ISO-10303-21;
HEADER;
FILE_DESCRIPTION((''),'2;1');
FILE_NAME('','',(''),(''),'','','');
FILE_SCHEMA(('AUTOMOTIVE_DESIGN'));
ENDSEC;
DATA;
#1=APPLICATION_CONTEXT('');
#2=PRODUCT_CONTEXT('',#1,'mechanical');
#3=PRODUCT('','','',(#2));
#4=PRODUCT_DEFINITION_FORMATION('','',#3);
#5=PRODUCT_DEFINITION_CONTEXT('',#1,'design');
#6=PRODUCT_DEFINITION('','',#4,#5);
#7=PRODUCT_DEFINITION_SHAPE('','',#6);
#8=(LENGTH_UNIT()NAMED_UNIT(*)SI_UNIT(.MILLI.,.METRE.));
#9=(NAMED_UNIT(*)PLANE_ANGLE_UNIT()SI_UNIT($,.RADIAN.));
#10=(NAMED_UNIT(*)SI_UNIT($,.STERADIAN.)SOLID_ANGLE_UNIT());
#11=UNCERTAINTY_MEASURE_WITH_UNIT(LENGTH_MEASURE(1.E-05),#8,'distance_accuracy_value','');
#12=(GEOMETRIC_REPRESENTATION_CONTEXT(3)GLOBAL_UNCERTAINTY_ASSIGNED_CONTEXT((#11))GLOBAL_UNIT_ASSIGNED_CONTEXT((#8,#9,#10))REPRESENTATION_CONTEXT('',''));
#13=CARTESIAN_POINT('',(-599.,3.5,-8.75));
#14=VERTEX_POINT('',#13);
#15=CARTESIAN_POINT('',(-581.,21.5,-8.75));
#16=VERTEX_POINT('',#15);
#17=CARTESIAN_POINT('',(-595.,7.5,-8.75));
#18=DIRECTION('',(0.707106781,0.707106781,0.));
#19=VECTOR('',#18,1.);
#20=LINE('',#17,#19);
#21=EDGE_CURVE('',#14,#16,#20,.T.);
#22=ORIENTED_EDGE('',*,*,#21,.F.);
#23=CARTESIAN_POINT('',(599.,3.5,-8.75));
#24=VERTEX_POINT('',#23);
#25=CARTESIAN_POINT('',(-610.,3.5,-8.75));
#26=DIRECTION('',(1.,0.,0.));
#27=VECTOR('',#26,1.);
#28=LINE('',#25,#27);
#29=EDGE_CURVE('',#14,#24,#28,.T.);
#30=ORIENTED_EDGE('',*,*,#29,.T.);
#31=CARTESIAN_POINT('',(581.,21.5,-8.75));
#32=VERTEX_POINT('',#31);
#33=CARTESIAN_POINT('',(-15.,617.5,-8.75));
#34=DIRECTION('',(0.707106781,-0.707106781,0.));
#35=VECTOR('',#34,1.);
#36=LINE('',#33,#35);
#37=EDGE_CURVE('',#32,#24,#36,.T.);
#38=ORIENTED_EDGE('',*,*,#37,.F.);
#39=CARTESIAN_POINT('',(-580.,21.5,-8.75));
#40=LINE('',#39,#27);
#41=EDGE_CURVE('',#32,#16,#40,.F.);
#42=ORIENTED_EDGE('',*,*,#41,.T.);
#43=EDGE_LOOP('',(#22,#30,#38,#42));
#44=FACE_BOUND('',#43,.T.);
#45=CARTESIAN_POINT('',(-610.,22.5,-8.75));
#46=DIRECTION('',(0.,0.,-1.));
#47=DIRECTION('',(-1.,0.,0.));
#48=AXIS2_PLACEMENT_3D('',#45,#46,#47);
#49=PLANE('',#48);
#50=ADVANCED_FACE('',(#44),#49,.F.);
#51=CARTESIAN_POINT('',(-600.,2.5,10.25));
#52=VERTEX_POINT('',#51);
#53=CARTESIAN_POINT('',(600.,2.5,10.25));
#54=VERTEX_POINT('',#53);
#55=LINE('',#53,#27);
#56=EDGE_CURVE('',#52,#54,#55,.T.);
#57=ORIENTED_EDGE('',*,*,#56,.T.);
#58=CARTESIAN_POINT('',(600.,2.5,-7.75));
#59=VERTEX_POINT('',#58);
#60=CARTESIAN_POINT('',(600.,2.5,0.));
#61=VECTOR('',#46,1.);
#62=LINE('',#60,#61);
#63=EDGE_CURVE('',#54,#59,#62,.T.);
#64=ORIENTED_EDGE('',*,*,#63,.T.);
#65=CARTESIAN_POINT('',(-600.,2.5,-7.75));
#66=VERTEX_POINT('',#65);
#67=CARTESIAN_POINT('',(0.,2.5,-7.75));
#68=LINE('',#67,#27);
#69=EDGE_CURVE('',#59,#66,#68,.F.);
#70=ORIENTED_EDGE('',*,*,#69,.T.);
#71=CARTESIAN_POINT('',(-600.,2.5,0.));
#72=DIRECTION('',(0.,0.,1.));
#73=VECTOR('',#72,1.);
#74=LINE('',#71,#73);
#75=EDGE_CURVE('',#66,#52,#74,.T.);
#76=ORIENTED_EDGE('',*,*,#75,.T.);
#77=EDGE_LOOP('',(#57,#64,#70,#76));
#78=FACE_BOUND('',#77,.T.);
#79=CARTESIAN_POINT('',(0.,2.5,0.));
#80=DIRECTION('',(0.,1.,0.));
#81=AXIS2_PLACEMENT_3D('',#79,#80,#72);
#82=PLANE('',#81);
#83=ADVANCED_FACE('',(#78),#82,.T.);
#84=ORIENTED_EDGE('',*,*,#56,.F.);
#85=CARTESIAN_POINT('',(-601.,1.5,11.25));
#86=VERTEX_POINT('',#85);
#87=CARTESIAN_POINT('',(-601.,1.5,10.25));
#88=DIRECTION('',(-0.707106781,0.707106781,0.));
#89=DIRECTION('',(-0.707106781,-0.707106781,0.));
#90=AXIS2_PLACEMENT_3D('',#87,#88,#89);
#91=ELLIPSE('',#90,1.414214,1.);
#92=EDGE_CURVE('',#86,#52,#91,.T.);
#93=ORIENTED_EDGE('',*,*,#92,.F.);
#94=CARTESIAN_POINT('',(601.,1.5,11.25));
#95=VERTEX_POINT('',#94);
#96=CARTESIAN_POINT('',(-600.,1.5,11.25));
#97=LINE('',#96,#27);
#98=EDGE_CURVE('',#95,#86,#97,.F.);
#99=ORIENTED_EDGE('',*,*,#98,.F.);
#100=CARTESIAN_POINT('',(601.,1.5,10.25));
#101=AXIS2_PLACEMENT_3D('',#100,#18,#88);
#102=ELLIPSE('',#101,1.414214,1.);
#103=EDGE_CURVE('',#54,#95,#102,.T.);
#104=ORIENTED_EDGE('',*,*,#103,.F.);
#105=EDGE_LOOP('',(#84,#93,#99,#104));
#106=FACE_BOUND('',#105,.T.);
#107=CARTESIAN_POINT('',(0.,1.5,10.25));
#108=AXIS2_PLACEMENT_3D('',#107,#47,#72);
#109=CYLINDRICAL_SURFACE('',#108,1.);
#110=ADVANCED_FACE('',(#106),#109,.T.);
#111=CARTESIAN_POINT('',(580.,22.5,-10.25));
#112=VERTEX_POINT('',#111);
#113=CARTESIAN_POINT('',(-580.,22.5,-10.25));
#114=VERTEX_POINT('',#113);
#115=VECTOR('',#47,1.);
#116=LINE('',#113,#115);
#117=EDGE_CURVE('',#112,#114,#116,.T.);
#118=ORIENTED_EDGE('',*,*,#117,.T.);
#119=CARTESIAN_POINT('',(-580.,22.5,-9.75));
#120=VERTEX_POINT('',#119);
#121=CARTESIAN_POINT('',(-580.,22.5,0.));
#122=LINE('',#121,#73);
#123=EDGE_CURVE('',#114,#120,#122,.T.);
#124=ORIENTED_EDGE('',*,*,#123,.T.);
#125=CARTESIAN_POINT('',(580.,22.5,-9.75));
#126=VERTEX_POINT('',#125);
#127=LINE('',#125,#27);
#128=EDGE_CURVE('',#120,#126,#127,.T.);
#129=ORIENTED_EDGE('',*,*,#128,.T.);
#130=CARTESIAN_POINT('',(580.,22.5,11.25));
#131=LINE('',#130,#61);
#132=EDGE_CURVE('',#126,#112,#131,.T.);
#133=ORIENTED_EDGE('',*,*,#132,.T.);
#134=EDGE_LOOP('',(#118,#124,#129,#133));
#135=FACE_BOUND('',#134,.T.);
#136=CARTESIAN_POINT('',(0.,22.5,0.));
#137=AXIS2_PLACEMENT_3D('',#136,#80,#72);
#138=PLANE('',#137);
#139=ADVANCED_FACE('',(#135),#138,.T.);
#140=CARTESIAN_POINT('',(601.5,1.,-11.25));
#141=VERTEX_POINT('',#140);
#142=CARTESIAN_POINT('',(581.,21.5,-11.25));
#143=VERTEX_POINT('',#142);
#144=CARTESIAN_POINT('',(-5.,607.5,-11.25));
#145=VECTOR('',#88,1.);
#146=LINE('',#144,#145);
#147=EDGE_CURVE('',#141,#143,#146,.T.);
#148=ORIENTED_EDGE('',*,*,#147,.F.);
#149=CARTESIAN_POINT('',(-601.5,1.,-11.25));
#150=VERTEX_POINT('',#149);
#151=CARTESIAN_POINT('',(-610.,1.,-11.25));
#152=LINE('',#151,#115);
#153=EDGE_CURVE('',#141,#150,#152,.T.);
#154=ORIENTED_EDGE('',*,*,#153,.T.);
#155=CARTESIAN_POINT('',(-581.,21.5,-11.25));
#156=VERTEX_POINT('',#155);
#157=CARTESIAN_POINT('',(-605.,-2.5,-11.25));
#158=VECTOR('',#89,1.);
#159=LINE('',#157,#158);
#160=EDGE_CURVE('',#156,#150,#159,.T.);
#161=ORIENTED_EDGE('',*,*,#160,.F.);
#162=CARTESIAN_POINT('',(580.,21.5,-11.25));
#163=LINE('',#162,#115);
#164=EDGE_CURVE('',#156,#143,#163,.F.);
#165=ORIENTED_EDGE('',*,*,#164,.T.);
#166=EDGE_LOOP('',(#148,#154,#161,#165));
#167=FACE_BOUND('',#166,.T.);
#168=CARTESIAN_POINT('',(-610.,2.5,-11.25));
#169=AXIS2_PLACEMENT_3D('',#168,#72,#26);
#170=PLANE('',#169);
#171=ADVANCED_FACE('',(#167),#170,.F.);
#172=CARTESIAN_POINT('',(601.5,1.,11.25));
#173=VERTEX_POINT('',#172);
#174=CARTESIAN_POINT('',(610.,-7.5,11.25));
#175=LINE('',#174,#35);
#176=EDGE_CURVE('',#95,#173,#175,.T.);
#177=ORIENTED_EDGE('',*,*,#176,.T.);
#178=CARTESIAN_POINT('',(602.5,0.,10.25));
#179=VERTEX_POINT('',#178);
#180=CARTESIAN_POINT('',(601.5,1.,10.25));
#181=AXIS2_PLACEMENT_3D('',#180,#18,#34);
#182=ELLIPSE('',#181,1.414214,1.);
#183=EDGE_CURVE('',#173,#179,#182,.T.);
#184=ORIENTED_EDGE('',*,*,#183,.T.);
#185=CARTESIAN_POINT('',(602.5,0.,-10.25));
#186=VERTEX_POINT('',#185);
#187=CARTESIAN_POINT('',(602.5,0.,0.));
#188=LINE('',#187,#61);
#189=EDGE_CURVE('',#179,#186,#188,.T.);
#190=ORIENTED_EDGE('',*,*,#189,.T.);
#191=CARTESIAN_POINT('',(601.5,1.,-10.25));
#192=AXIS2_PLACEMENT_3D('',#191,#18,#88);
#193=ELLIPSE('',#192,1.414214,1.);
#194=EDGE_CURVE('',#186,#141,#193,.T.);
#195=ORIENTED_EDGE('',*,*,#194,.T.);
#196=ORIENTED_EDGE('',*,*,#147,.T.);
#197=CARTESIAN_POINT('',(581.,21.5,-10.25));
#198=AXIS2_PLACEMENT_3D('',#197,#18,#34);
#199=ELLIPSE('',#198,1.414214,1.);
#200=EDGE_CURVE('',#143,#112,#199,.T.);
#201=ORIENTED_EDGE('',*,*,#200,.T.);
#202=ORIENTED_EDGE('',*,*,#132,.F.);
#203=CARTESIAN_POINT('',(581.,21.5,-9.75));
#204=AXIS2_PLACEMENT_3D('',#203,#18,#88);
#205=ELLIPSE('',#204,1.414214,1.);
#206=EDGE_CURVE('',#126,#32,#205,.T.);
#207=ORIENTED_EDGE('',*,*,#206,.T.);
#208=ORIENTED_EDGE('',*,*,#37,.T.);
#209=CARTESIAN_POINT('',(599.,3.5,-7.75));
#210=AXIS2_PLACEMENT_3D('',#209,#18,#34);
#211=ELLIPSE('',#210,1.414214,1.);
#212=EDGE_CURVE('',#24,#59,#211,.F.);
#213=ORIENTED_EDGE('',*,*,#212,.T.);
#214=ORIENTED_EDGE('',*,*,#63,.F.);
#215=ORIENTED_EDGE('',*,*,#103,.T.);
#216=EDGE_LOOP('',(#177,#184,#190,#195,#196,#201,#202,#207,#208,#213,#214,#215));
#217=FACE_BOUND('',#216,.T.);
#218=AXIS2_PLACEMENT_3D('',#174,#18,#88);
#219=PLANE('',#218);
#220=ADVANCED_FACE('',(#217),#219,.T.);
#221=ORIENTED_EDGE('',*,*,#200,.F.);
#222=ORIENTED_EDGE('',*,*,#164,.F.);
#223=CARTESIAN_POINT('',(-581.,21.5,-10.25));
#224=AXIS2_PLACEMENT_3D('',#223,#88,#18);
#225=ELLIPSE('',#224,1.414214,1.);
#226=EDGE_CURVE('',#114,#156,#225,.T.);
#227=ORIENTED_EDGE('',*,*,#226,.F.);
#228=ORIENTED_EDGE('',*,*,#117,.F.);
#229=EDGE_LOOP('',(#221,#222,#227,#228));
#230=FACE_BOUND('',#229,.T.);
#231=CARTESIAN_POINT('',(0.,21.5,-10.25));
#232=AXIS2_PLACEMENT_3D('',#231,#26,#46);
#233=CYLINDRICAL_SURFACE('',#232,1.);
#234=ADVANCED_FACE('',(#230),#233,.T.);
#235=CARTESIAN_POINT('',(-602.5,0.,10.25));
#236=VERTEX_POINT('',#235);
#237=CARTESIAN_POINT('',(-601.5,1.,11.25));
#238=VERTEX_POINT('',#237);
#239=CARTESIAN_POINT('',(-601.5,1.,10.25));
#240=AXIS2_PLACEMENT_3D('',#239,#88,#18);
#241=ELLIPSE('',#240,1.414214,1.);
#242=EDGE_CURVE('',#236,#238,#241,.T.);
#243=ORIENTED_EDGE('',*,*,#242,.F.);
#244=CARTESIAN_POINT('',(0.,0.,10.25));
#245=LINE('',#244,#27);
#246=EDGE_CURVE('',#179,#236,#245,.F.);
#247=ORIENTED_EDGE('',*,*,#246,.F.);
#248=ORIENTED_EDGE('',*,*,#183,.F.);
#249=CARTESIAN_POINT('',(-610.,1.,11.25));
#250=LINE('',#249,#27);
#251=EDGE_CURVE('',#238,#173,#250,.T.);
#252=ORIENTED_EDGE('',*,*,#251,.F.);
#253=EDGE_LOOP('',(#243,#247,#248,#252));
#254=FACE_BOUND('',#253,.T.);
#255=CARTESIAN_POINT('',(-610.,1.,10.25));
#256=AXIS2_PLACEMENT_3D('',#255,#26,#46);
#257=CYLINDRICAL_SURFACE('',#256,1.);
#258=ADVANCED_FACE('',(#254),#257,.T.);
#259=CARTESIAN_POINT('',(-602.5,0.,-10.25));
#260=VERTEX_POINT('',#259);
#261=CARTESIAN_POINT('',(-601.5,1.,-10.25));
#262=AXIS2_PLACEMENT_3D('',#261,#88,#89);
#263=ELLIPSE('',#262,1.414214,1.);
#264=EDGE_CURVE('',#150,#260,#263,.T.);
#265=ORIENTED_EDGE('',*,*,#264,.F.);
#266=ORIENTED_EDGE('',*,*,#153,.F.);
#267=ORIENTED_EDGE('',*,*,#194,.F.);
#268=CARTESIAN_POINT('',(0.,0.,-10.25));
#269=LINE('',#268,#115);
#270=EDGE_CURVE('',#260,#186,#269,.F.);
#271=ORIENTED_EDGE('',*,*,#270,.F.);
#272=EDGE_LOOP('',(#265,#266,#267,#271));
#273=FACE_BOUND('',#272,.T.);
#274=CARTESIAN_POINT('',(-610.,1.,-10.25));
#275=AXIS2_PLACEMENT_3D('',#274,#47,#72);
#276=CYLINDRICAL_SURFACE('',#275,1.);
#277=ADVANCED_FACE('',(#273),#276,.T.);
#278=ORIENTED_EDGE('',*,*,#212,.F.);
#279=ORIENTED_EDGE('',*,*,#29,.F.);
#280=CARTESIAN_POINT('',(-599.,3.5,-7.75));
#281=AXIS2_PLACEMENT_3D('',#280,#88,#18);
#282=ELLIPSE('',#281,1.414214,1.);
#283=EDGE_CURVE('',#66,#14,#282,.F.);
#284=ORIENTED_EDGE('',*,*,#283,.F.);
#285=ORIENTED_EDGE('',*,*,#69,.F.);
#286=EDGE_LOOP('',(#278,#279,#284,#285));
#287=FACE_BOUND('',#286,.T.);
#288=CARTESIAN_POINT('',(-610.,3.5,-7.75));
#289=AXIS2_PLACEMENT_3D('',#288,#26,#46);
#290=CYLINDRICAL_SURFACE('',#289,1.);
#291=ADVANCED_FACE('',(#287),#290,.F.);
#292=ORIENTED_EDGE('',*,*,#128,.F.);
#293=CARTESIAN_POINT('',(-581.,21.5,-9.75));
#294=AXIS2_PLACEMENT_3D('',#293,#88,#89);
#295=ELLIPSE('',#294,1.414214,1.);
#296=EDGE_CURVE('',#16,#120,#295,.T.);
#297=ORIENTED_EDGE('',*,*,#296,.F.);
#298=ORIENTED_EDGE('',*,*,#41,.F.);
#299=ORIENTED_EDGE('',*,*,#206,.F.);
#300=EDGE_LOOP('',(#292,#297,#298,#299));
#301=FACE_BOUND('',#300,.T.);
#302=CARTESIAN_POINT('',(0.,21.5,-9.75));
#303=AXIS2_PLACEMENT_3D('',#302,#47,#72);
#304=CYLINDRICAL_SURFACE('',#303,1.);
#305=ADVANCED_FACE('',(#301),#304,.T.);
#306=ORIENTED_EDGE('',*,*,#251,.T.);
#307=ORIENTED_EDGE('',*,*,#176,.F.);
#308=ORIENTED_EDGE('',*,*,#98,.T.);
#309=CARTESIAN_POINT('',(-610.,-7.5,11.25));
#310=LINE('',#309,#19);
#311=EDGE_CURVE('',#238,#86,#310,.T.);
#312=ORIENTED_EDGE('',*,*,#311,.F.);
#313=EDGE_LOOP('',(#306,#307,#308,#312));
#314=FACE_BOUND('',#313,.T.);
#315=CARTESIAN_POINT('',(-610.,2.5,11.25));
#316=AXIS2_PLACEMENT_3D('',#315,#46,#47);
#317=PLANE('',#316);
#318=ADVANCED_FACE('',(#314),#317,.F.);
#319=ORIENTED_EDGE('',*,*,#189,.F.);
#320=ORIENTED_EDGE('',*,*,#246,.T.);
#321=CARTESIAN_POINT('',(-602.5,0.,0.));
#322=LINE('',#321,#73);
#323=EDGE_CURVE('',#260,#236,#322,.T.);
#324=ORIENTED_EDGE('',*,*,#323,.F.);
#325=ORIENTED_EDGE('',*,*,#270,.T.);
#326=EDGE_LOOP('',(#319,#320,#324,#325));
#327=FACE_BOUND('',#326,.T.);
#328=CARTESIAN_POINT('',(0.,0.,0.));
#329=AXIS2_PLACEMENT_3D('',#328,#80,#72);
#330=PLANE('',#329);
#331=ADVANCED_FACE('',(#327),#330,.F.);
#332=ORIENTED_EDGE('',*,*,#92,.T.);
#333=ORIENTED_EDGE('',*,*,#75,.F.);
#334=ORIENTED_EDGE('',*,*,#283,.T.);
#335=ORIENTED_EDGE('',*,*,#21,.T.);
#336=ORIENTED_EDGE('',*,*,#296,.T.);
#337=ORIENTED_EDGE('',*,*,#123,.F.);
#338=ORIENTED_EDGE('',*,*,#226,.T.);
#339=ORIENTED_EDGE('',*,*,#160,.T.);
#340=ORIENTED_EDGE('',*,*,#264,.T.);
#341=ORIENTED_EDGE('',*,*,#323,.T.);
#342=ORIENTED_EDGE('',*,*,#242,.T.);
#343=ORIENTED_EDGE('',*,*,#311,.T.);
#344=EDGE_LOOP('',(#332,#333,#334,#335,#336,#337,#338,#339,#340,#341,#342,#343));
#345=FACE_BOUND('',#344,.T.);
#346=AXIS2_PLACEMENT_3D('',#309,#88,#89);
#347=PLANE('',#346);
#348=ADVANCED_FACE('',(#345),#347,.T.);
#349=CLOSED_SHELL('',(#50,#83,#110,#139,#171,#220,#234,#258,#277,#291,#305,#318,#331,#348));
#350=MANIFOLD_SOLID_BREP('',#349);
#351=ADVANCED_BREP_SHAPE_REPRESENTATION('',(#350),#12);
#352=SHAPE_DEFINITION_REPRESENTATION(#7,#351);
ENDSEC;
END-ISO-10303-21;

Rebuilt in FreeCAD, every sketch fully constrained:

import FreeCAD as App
import Part
import Sketcher


def edges_at(feature, points):
    """Names of the edges that pass closest to the given points."""
    edges = feature.Shape.Edges
    near = lambda p: min(range(len(edges)), key=lambda i: edges[i].distToShape(Part.Vertex(*p))[0])
    return sorted({f"Edge{near(p) + 1}" for p in points})


def add_polygon(sketch, points):
    """Adds a closed chain of lines whose ends are joined by coincident constraints."""
    first, n = sketch.GeometryCount, len(points)
    for a, b in zip(points, points[1:] + points[:1]):
        sketch.addGeometry(Part.LineSegment(App.Vector(*a, 0), App.Vector(*b, 0)), False)
    for i in range(n):
        sketch.addConstraint(Sketcher.Constraint("Coincident", first + i, 2, first + (i + 1) % n, 1))

doc = App.newDocument("Part")
body = doc.addObject("PartDesign::Body", "Body")

# Sketch on XZ plane
sketch1 = doc.addObject("Sketcher::SketchObject", "Sketch")
body.addObject(sketch1)
sketch1.AttachmentSupport = (doc.XZ_Plane, [""])
sketch1.MapMode = "FlatFace"
add_polygon(sketch1, [(-610, -11.25), (-610, 11.25), (610, 11.25), (610, -11.25)])  # lines 0-3
sketch1.addConstraint([
    Sketcher.Constraint("Vertical", 0),
    Sketcher.Constraint("Horizontal", 1),
    Sketcher.Constraint("Vertical", 2),
    Sketcher.Constraint("Horizontal", 3),
    Sketcher.Constraint("Symmetric", 0, 2, 2, 2, -1, 1),
    Sketcher.Constraint("DistanceX", 1, 1, 1, 2, 1220.0),
    Sketcher.Constraint("DistanceY", 0, 1, 0, 2, 22.5),
])
pad1 = doc.addObject("PartDesign::Pad", "Pad")
body.addObject(pad1)
pad1.Profile = sketch1
pad1.Length = 2.5
pad1.Reversed = True

# Sketch on XZ plane
sketch2 = doc.addObject("Sketcher::SketchObject", "Sketch001")
body.addObject(sketch2)
sketch2.AttachmentSupport = (doc.XZ_Plane, [""])
sketch2.MapMode = "FlatFace"
sketch2.AttachmentOffset = App.Placement(App.Vector(0, 0, -2.5), App.Rotation())
add_polygon(sketch2, [(-610, -11.25), (-610, -8.75), (610, -8.75), (610, -11.25)])  # lines 0-3
sketch2.addConstraint([
    Sketcher.Constraint("Vertical", 0),
    Sketcher.Constraint("Horizontal", 1),
    Sketcher.Constraint("Vertical", 2),
    Sketcher.Constraint("Horizontal", 3),
    Sketcher.Constraint("DistanceX", 1, 1, 1, 2, 1220.0),
    Sketcher.Constraint("DistanceY", 0, 1, 0, 2, 2.5),
    Sketcher.Constraint("DistanceX", 0, 2, -1, 1, 610.0),
    Sketcher.Constraint("DistanceY", 0, 2, -1, 1, 8.75),
])
pad2 = doc.addObject("PartDesign::Pad", "Pad001")
body.addObject(pad2)
pad2.Profile = sketch2
pad2.Length = 20
pad2.Reversed = True

# Sketch on XY plane
sketch3 = doc.addObject("Sketcher::SketchObject", "Sketch002")
body.addObject(sketch3)
sketch3.AttachmentSupport = (doc.XY_Plane, [""])
sketch3.MapMode = "FlatFace"
sketch3.AttachmentOffset = App.Placement(App.Vector(0, 0, -8.75), App.Rotation())
add_polygon(sketch3, [(-610, 22.5), (-610, -7.5), (-580, 22.5)])  # lines 0-2
add_polygon(sketch3, [(610, -7.5), (610, 22.5), (580, 22.5)])  # lines 3-5
sketch3.addConstraint([
    Sketcher.Constraint("Vertical", 0),
    Sketcher.Constraint("Horizontal", 2),
    Sketcher.Constraint("Vertical", 3),
    Sketcher.Constraint("Horizontal", 4),
    Sketcher.Constraint("Symmetric", 2, 2, 3, 2, -2),
    Sketcher.Constraint("Perpendicular", 1, 5),
    Sketcher.Constraint("Horizontal", 0, 2, 5, 2),
    Sketcher.Constraint("Equal", 2, 4),
    Sketcher.Constraint("DistanceX", 2, 2, 2, 1, 30.0),
    Sketcher.Constraint("DistanceX", 0, 2, -1, 1, 610.0),
    Sketcher.Constraint("DistanceY", 0, 2, -1, 1, 7.5),
])
pocket1 = doc.addObject("PartDesign::Pocket", "Pocket")
body.addObject(pocket1)
pocket1.Profile = sketch3
pocket1.Type = "ThroughAll"
pocket1.Midplane = True
doc.recompute()

fillet = doc.addObject("PartDesign::Fillet", "Fillet")
body.addObject(fillet)
fillet.Base = (pocket1, edges_at(pocket1, [
    (0, 22.5, -8.75),
    (0, 2.5, -8.75),
    (0, 0, 11.25),
    (0, 2.5, 11.25),
    (0, 22.5, -11.25),
    (0, 0, -11.25),
]))
fillet.Radius = 1

doc.recompute()
